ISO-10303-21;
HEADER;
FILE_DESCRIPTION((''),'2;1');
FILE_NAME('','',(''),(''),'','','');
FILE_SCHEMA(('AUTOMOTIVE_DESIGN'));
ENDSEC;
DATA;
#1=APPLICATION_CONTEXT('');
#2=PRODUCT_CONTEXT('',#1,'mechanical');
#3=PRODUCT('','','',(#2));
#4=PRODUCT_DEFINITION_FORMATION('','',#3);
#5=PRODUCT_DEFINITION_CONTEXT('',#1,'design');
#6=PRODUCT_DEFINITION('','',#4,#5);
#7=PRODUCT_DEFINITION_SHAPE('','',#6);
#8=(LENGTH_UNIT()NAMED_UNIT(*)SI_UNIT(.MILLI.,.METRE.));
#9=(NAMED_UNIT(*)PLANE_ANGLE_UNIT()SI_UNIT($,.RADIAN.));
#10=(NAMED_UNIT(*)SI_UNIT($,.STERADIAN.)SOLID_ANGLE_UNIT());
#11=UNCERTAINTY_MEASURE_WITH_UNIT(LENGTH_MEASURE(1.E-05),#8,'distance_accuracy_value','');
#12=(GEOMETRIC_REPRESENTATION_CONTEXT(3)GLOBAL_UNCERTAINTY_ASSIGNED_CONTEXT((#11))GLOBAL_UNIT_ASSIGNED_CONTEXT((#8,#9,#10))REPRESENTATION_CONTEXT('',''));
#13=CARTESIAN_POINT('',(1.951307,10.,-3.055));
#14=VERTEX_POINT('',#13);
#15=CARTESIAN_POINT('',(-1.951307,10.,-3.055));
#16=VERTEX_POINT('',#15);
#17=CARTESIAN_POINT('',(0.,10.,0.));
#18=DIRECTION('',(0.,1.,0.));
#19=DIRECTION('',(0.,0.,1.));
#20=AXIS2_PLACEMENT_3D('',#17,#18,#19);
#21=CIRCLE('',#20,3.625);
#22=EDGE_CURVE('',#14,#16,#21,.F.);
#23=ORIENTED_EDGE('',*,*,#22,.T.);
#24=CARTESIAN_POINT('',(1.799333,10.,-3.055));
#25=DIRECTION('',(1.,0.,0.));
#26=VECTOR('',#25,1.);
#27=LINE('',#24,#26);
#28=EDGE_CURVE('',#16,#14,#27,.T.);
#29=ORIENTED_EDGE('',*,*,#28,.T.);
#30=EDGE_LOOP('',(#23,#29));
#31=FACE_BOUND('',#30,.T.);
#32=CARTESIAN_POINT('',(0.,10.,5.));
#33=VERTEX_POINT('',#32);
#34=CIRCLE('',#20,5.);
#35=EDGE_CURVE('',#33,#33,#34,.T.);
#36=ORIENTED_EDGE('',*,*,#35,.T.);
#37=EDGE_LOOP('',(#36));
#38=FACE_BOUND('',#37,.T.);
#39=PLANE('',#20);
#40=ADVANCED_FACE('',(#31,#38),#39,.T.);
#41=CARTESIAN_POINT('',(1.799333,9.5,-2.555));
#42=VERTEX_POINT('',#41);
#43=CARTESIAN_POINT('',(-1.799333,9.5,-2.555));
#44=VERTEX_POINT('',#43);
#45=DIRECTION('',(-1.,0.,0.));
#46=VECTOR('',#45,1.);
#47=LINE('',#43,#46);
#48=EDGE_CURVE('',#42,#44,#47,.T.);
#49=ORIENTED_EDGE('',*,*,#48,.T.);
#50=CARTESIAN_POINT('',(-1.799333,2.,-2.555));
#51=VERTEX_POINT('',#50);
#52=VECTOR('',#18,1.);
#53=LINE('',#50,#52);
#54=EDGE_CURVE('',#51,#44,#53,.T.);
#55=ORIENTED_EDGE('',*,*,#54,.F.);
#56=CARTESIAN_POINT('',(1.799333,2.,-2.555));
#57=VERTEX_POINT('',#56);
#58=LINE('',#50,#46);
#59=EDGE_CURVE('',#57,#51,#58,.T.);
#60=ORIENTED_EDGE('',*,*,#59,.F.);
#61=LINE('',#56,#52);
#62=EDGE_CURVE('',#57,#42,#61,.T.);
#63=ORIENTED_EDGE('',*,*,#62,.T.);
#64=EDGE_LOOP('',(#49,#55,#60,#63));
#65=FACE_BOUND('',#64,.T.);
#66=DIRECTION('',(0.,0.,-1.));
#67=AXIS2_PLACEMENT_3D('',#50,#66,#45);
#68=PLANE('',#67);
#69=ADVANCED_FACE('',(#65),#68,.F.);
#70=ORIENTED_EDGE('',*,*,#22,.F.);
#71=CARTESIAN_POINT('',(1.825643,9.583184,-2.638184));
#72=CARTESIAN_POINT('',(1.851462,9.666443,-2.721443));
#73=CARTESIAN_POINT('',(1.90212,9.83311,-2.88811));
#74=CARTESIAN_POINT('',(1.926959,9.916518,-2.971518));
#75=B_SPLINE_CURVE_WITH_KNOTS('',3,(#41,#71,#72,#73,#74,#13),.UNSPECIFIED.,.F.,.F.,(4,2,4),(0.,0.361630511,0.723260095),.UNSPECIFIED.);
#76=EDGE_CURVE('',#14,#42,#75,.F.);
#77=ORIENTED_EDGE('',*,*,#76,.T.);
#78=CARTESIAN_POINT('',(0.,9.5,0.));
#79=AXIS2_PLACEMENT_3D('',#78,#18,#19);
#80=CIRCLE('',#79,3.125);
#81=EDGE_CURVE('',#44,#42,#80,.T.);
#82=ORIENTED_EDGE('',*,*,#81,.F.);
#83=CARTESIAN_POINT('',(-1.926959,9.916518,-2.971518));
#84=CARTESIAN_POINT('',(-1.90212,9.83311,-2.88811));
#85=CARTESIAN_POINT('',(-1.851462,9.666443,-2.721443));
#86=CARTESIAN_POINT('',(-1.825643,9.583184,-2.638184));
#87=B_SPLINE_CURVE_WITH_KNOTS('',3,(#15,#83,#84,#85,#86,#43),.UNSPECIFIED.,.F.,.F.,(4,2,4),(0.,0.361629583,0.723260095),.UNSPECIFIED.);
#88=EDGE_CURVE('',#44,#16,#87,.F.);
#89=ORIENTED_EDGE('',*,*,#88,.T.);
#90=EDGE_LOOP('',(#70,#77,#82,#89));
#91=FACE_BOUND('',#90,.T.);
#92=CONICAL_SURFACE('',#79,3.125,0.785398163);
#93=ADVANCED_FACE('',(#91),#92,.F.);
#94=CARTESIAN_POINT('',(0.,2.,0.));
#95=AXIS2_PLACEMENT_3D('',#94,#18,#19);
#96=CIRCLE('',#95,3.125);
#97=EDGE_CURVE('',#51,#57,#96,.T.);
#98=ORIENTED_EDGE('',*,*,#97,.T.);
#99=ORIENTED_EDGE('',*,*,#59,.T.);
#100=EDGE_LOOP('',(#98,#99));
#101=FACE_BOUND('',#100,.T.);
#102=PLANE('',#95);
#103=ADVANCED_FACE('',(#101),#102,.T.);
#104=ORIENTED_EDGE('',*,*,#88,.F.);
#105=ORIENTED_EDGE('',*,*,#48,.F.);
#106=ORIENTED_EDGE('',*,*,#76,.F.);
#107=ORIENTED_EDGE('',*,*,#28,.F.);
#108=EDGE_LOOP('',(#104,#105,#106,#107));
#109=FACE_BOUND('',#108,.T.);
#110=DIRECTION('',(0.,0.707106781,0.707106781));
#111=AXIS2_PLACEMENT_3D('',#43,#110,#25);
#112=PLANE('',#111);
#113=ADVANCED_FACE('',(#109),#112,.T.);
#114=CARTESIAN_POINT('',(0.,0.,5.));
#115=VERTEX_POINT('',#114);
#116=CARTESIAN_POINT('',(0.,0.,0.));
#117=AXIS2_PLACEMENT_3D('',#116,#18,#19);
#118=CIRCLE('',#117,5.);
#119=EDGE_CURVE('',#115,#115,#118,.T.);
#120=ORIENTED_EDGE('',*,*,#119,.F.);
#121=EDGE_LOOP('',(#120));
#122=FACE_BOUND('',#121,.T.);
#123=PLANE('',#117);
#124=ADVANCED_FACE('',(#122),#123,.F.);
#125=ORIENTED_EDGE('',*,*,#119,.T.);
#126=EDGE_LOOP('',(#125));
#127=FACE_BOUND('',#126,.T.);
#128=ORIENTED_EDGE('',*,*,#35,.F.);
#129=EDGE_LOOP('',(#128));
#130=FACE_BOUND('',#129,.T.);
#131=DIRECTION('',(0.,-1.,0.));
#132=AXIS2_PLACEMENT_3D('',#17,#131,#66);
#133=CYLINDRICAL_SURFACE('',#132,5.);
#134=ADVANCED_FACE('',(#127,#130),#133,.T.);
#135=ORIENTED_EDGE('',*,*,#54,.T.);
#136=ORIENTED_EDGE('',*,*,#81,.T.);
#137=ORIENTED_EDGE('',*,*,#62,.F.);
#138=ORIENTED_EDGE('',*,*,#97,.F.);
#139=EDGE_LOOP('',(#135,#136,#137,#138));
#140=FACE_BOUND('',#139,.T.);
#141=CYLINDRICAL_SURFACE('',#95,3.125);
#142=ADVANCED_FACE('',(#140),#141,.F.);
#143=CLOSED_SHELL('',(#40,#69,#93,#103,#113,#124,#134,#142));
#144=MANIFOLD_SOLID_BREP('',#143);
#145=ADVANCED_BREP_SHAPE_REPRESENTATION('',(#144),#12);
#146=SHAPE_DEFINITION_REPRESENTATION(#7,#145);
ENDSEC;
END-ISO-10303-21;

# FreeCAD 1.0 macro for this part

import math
import FreeCAD as App
import Part
import Sketcher
from FreeCAD import Vector
Q = App.Units.Quantity


def edges_at(feature, points):
    """Names of the edges that pass closest to the given points."""
    edges = feature.Shape.Edges
    near = lambda p: min(range(len(edges)), key=lambda i: edges[i].distToShape(Part.Vertex(*p))[0])
    return sorted({f"Edge{near(p) + 1}" for p in points})

doc = App.newDocument("Part")
params = doc.addObject("Spreadsheet::Sheet", "Params")
for row, (alias, value) in enumerate([
    ("sketch1_diameter", "10 mm"),
    ("pad1_length", "10 mm"),
    ("pocket1_length", "8 mm"),
    ("chamfer_size", "0.5 mm"),
], start=1):
    params.set(f"A{row}", alias)
    params.set(f"B{row}", "=" + value)
    params.setAlias(f"B{row}", alias)

body = doc.addObject("PartDesign::Body", "Body")

sketch1 = body.newObject("Sketcher::SketchObject", "Sketch")
sketch1.AttachmentSupport = (doc.getObject("XZ_Plane"), [""])
sketch1.MapMode = "FlatFace"
sketch1.addGeometry(Part.Circle(Vector(0, 0, 0), Vector(0, 0, 1), 5), False)
sketch1.addConstraint([
    Sketcher.Constraint("Coincident", 0, 3, -1, 1),
    Sketcher.Constraint("Diameter", 0, Q("10 mm")),
])
sketch1.setExpression("Constraints[1]", "Params.sketch1_diameter")
pad1 = body.newObject("PartDesign::Pad", "Pad")
pad1.Profile = sketch1
pad1.setExpression("Length", "Params.pad1_length")
pad1.Reversed = True

sketch2 = body.newObject("Sketcher::SketchObject", "Sketch001")
sketch2.AttachmentSupport = (doc.getObject("XZ_Plane"), [""])
sketch2.MapMode = "FlatFace"
sketch2.AttachmentOffset = App.Placement(Vector(0, 0, -10), App.Rotation())
sketch2.addGeometry([
    Part.LineSegment(Vector(1.8, -2.6, 0), Vector(-1.8, -2.6, 0)),
    Part.ArcOfCircle(Part.Circle(Vector(0, 0, 0), Vector(0, 0, 1), 3.1), math.radians(-55), math.radians(235)),
], False)
sketch2.addConstraint([
    Sketcher.Constraint("Coincident", 0, 1, 1, 1),
    Sketcher.Constraint("Coincident", 1, 2, 0, 2),
    Sketcher.Constraint("Horizontal", 0),
    Sketcher.Constraint("Coincident", 1, 3, -1, 1),
    Sketcher.Constraint("Radius", 1, Q("3.125 mm")),
    Sketcher.Constraint("DistanceY", 0, 1, -1, 1, Q("2.555 mm")),
])
pocket1 = body.newObject("PartDesign::Pocket", "Pocket")
pocket1.Profile = sketch2
pocket1.setExpression("Length", "Params.pocket1_length")
pocket1.Reversed = True
doc.recompute()

chamfer = body.newObject("PartDesign::Chamfer", "Chamfer")
chamfer.Base = (pocket1, edges_at(pocket1, [(0, 10, 3.125), (0, 10, -2.555)]))
chamfer.setExpression("Size", "Params.chamfer_size")

doc.recompute()
